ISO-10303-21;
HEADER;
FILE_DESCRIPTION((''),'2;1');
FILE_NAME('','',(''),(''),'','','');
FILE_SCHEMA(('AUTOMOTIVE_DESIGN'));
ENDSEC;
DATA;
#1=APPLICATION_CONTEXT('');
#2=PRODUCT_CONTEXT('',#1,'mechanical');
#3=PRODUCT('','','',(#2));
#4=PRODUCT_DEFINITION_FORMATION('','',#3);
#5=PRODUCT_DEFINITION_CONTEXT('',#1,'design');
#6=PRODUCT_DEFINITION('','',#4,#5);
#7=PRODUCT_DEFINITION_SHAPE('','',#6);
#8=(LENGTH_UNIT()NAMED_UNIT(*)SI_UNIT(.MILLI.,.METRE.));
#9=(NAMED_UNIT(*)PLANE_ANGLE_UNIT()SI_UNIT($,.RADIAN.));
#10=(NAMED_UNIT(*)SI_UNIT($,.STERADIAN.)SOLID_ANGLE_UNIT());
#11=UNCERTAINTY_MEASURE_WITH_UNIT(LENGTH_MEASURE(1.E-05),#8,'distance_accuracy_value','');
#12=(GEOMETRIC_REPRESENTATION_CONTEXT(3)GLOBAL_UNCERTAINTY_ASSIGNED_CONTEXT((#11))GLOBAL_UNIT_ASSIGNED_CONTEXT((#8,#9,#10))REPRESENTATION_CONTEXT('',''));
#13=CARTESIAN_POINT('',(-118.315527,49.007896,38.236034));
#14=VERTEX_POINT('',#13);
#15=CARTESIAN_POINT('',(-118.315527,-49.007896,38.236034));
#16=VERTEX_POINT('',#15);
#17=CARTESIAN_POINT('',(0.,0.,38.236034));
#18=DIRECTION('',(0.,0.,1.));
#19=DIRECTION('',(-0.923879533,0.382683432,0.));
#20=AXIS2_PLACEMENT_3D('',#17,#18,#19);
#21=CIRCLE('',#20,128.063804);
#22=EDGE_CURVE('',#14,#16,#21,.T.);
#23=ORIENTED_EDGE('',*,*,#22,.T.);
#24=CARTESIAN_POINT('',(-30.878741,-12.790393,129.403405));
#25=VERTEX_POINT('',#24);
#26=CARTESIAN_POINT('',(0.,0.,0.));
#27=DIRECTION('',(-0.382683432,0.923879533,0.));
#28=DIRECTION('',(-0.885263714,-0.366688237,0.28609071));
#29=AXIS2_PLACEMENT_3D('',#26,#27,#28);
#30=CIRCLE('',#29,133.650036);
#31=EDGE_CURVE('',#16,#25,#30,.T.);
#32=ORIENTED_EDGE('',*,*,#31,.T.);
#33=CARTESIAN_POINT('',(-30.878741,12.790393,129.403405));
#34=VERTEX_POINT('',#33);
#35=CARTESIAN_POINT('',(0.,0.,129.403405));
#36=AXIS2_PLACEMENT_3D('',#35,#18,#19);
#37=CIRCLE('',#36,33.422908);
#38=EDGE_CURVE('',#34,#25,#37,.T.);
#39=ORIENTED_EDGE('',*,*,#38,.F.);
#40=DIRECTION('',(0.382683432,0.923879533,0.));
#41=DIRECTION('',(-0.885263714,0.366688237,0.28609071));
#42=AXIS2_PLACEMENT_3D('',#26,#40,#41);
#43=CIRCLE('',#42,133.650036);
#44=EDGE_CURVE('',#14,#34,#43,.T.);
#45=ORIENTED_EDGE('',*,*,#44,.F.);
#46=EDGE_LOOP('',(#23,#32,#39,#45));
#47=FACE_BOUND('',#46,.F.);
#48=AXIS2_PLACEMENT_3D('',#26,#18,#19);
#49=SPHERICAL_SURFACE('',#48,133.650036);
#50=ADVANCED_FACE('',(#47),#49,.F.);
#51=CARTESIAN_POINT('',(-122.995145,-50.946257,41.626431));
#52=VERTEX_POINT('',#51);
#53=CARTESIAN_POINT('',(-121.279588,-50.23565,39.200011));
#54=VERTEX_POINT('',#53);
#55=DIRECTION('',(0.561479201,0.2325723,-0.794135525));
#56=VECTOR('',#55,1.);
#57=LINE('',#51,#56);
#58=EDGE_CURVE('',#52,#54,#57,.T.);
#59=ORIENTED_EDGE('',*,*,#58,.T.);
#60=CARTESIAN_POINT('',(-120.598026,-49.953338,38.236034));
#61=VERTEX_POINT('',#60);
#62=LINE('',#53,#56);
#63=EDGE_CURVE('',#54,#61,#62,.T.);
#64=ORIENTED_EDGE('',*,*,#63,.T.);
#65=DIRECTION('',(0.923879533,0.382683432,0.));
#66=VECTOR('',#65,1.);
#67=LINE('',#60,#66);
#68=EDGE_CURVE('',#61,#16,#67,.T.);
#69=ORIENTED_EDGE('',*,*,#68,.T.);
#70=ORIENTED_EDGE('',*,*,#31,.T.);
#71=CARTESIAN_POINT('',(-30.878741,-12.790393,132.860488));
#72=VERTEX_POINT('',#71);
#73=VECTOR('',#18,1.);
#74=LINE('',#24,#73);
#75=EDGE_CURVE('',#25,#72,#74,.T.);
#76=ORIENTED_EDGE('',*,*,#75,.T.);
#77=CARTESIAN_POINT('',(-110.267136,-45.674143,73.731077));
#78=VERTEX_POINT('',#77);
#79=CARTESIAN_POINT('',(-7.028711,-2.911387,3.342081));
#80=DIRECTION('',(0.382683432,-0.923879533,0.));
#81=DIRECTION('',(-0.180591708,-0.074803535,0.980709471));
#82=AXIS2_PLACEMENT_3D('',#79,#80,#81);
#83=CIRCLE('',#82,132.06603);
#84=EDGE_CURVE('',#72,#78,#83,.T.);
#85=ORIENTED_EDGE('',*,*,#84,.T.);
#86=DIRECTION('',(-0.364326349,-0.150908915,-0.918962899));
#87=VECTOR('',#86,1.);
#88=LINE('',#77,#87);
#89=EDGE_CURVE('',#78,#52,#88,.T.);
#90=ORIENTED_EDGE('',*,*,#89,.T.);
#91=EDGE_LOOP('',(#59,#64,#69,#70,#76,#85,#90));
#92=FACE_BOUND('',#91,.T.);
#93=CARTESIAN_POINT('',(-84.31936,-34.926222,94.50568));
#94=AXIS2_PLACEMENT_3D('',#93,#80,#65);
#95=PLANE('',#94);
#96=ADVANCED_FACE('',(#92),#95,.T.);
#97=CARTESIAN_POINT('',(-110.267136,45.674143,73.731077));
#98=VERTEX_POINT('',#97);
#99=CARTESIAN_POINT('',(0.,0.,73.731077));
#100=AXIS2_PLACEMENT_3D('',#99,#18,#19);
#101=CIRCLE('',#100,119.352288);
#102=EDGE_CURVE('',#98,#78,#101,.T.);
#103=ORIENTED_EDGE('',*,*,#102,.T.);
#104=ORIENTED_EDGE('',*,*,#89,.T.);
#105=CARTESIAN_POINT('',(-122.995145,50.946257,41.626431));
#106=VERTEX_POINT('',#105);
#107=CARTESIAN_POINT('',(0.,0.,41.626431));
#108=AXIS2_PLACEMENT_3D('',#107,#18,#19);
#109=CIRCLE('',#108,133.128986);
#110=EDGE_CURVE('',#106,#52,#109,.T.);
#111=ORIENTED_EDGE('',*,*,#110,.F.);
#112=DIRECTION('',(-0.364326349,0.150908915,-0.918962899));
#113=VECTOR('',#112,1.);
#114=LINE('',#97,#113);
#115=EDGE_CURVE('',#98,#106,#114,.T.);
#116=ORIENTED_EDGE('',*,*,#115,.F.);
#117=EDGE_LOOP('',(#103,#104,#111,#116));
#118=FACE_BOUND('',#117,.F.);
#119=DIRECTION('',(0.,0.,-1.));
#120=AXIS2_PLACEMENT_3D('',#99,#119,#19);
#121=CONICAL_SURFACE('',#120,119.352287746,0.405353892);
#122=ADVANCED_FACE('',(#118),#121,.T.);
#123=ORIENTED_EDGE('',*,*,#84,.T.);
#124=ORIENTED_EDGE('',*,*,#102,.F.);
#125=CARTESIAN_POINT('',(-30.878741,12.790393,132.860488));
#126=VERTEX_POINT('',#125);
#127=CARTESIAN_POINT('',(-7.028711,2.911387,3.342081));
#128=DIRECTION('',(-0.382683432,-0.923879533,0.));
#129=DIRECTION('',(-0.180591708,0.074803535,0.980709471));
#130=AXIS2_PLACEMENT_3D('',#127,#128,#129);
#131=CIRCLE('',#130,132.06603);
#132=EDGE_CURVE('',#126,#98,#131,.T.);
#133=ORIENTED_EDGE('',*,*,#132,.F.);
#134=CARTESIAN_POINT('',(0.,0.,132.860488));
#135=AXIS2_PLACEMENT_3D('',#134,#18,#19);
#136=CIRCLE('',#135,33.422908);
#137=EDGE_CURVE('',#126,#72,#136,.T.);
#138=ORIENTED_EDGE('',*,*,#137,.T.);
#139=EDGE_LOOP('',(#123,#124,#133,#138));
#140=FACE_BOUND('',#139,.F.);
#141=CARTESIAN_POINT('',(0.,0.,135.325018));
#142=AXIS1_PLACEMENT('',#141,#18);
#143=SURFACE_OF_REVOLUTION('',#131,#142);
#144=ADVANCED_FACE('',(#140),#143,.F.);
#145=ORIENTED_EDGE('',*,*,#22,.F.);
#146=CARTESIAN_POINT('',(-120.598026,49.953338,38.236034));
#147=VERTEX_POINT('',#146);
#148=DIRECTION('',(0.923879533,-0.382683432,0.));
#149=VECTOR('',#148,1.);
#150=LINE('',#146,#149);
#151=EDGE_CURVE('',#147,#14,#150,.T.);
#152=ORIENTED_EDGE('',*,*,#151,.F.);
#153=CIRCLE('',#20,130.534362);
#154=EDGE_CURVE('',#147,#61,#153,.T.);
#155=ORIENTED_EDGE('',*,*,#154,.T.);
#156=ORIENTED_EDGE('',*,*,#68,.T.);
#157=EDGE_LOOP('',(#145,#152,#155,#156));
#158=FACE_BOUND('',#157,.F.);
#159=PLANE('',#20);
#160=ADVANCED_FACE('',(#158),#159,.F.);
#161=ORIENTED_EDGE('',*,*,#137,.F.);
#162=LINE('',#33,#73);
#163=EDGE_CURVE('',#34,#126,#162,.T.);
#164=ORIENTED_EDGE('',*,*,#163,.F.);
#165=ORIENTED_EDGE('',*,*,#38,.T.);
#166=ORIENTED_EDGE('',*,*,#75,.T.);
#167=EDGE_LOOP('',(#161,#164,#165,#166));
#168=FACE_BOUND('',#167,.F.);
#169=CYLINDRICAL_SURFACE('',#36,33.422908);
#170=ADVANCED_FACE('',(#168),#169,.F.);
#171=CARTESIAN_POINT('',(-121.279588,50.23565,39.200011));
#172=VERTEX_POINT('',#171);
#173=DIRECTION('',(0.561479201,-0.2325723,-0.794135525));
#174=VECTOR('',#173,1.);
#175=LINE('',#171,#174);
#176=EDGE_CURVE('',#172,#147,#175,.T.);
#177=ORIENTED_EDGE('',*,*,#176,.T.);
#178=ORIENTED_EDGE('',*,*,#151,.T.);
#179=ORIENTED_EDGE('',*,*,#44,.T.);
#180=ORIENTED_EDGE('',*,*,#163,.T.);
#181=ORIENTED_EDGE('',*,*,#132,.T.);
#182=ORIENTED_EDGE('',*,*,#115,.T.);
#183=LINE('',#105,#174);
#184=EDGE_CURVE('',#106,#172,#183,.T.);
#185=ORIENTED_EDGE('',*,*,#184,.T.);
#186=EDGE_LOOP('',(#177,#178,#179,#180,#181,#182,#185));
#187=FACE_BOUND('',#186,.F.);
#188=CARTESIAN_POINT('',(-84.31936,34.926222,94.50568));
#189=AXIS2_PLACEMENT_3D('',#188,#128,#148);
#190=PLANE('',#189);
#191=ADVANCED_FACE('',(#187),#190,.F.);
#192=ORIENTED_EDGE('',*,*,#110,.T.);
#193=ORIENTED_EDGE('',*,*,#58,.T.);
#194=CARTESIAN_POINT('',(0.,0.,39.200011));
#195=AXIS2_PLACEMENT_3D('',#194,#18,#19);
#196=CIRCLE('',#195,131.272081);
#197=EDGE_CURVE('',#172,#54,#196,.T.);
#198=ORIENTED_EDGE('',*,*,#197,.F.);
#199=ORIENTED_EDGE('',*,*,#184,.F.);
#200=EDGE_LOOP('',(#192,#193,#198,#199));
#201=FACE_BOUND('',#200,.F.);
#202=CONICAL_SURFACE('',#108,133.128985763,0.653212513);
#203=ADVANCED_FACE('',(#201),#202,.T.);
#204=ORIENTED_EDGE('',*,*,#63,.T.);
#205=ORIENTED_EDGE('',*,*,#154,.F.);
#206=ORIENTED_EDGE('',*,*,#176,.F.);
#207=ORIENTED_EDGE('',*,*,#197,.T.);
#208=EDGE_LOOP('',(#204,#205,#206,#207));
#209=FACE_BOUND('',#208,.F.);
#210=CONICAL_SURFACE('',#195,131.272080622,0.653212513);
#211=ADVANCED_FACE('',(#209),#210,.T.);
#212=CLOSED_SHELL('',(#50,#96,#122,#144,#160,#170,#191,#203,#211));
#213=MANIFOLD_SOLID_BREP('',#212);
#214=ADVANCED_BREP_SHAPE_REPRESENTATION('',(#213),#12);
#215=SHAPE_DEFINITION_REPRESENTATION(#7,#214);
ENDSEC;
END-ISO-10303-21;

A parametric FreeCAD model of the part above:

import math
import FreeCAD as App
import Part
import Sketcher

V = App.Vector
Q = App.Units.Quantity

doc = App.newDocument("Part")
params = doc.addObject("Spreadsheet::Sheet", "Params")
for row, (alias, value) in enumerate([
    ("revolution_angle", "45 deg"),
], start=1):
    params.set(f"A{row}", alias)
    params.set(f"B{row}", "=" + value)
    params.setAlias(f"B{row}", alias)

body = doc.addObject("PartDesign::Body", "Body")

sketch1 = doc.addObject("Sketcher::SketchObject", "Sketch")
body.addObject(sketch1)
sketch1.Placement = App.Placement(V(0, 0, 0), App.Rotation(V(0.923879533, -0.382683432, 0), V(0, 0, 1.000000001), V(-0.382683432, -0.923879533, 0), "ZXY"))
sketch1.addGeometry(Part.LineSegment(V(-133.1, 41.6, 0), V(-131.3, 39.2, 0)), False)
sketch1.addGeometry(Part.LineSegment(V(-131.3, 39.2, 0), V(-130.5, 38.2, 0)), False)
sketch1.addGeometry(Part.LineSegment(V(-130.5, 38.2, 0), V(-128.1, 38.2, 0)), False)
sketch1.addGeometry(Part.ArcOfCircle(Part.Circle(V(0, 0, 0), V(0, 0, 1), 133.7), math.radians(104), math.radians(163)), False)
sketch1.addGeometry(Part.LineSegment(V(-33.4, 129.4, 0), V(-33.4, 132.9, 0)), False)
sketch1.addGeometry(Part.ArcOfCircle(Part.Circle(V(-7.6, 3.3, 0), V(0, 0, 1), 132.1), math.radians(101), math.radians(148)), False)
sketch1.addGeometry(Part.LineSegment(V(-119.4, 73.7, 0), V(-133.1, 41.6, 0)), False)
sketch1.addConstraint(Sketcher.Constraint("Coincident", 0, 2, 1, 1))
sketch1.addConstraint(Sketcher.Constraint("Coincident", 1, 2, 2, 1))
sketch1.addConstraint(Sketcher.Constraint("Coincident", 2, 2, 3, 2))
sketch1.addConstraint(Sketcher.Constraint("Coincident", 3, 1, 4, 1))
sketch1.addConstraint(Sketcher.Constraint("Coincident", 4, 2, 5, 1))
sketch1.addConstraint(Sketcher.Constraint("Coincident", 5, 2, 6, 1))
sketch1.addConstraint(Sketcher.Constraint("Coincident", 6, 2, 0, 1))
sketch1.addConstraint(Sketcher.Constraint("Horizontal", 2))
sketch1.addConstraint(Sketcher.Constraint("Vertical", 4))
sketch1.addConstraint(Sketcher.Constraint("Coincident", 3, 3, -1, 1))
sketch1.addConstraint(Sketcher.Constraint("Parallel", 0, 1))
sketch1.addConstraint(Sketcher.Constraint("Radius", 5, Q("132.06603 mm")))
sketch1.addConstraint(Sketcher.Constraint("Radius", 3, Q("133.650036 mm")))
sketch1.addConstraint(Sketcher.Constraint("DistanceX", 2, 1, 2, 2, Q("2.470559 mm")))
sketch1.addConstraint(Sketcher.Constraint("DistanceX", 6, 2, 5, 2, Q("13.776698 mm")))
sketch1.addConstraint(Sketcher.Constraint("Distance", 1, Q("1.21387 mm")))
sketch1.addConstraint(Sketcher.Constraint("DistanceY", 4, 1, 4, 2, Q("3.457082 mm")))
sketch1.addConstraint(Sketcher.Constraint("DistanceX", 5, 3, -1, 1, Q("7.607822 mm")))
sketch1.addConstraint(Sketcher.Constraint("DistanceY", -1, 1, 5, 3, Q("3.342081 mm")))
sketch1.addConstraint(Sketcher.Constraint("DistanceX", 0, 2, -1, 1, Q("131.272081 mm")))
sketch1.addConstraint(Sketcher.Constraint("DistanceY", -1, 1, 0, 2, Q("39.200011 mm")))
sketch1.addConstraint(Sketcher.Constraint("DistanceY", -1, 1, 6, 2, Q("41.626431 mm")))
revolution = doc.addObject("PartDesign::Revolution", "Revolution")
body.addObject(revolution)
revolution.Profile = sketch1
revolution.ReferenceAxis = (sketch1, ["V_Axis"])
revolution.setExpression("Angle", "Params.revolution_angle")

doc.recompute()
